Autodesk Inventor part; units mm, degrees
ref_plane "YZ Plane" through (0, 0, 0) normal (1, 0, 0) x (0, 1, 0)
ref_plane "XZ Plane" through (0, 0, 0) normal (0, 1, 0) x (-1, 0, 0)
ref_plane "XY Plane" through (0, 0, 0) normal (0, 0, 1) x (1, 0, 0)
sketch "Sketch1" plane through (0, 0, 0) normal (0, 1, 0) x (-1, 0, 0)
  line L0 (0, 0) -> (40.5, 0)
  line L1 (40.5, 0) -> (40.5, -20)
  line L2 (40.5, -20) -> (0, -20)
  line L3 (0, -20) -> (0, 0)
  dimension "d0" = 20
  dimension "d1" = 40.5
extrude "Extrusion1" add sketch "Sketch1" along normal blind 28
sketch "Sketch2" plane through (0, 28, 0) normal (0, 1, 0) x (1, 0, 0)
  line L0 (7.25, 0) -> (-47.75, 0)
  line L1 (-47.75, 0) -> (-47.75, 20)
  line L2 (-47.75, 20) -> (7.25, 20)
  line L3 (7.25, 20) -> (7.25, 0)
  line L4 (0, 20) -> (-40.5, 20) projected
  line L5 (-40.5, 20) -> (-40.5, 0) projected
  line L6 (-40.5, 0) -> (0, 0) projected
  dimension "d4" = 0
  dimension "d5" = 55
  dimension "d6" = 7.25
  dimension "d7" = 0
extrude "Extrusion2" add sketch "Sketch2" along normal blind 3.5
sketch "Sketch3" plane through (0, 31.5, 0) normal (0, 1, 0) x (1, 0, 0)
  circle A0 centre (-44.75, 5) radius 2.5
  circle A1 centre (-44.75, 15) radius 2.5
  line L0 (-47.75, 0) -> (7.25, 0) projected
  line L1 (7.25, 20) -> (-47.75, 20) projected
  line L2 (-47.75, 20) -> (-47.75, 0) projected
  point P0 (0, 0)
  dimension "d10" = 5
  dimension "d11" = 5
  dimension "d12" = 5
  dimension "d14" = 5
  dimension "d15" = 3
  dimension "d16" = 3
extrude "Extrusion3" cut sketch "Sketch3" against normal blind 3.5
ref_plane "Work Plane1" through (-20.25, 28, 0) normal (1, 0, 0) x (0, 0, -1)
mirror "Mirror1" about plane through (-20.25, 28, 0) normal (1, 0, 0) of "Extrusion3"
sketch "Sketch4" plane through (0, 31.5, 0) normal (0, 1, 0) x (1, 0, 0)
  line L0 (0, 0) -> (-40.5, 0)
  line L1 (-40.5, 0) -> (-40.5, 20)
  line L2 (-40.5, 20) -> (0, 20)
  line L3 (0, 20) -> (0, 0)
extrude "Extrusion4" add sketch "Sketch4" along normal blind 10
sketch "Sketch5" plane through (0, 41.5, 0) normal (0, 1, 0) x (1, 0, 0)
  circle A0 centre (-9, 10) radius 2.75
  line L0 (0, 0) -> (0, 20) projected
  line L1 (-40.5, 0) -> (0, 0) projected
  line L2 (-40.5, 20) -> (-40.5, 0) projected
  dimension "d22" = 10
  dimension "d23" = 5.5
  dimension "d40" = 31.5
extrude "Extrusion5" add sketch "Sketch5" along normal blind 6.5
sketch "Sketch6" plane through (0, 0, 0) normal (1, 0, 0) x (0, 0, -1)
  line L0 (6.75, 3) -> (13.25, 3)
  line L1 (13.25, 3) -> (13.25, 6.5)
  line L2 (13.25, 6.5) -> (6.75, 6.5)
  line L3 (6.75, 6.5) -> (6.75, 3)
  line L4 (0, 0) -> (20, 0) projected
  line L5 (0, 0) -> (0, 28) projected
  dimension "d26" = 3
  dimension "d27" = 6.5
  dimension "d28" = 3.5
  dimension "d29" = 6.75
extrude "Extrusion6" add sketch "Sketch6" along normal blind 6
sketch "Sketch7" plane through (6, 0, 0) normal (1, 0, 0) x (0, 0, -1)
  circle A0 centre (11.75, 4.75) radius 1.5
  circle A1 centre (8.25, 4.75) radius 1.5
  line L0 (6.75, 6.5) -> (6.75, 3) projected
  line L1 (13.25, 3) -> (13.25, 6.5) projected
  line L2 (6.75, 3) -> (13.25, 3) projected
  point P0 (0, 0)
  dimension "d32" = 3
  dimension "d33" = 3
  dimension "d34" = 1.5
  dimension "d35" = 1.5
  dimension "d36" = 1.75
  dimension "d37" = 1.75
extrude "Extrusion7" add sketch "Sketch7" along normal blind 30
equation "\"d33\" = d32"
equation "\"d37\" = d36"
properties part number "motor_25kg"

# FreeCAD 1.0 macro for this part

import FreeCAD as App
import Part
import Sketcher
from FreeCAD import Vector
Q = App.Units.Quantity


def add_polygon(sketch, points):
    """Adds a closed chain of lines whose ends are joined by coincident constraints."""
    first, n = sketch.GeometryCount, len(points)
    for a, b in zip(points, points[1:] + points[:1]):
        sketch.addGeometry(Part.LineSegment(App.Vector(*a, 0), App.Vector(*b, 0)), False)
    for i in range(n):
        sketch.addConstraint(Sketcher.Constraint("Coincident", first + i, 2, first + (i + 1) % n, 1))

doc = App.newDocument("Part")
body = doc.addObject("PartDesign::Body", "Body")

# Sketch on XZ plane
sketch1 = body.newObject("Sketcher::SketchObject", "Sketch")
sketch1.AttachmentSupport = (doc.getObject("XZ_Plane"), [""])
sketch1.MapMode = "FlatFace"
add_polygon(sketch1, [(-40.5, 0), (0, 0), (0, -20), (-40.5, -20)])  # lines 0-3
sketch1.addConstraint([
    Sketcher.Constraint("Horizontal", 0),
    Sketcher.Constraint("Vertical", 1),
    Sketcher.Constraint("Horizontal", 2),
    Sketcher.Constraint("Vertical", 3),
    Sketcher.Constraint("Coincident", 0, 2, -1, 1),
    Sketcher.Constraint("DistanceY", 1, 2, 1, 1, Q("20 mm")),
    Sketcher.Constraint("DistanceX", 0, 1, 0, 2, Q("40.5 mm")),
])
pad1 = body.newObject("PartDesign::Pad", "Pad")
pad1.Profile = sketch1
pad1.Length = 28
pad1.Reversed = True

# Sketch on XZ plane
sketch2 = body.newObject("Sketcher::SketchObject", "Sketch001")
sketch2.AttachmentSupport = (doc.getObject("XZ_Plane"), [""])
sketch2.MapMode = "FlatFace"
sketch2.AttachmentOffset = App.Placement(Vector(0, 0, -28), App.Rotation())
add_polygon(sketch2, [(7.25, 0), (7.25, -20), (-47.75, -20), (-47.75, 0)])  # lines 0-3
sketch2.addConstraint([
    Sketcher.Constraint("Vertical", 0),
    Sketcher.Constraint("Horizontal", 1),
    Sketcher.Constraint("Vertical", 2),
    Sketcher.Constraint("Horizontal", 3),
    Sketcher.Constraint("PointOnObject", 2, 2, -1),
    Sketcher.Constraint("DistanceX", 1, 2, 1, 1, Q("55 mm")),
    Sketcher.Constraint("DistanceY", 0, 2, 0, 1, Q("20 mm")),
    Sketcher.Constraint("DistanceX", -1, 1, 0, 2, Q("7.25 mm")),
])
pad2 = body.newObject("PartDesign::Pad", "Pad001")
pad2.Profile = sketch2
pad2.Length = 3.5
pad2.Reversed = True

# Sketch on XZ plane
sketch3 = body.newObject("Sketcher::SketchObject", "Sketch002")
sketch3.AttachmentSupport = (doc.getObject("XZ_Plane"), [""])
sketch3.MapMode = "FlatFace"
sketch3.AttachmentOffset = App.Placement(Vector(0, 0, -31.5), App.Rotation())
sketch3.addGeometry([
    Part.Circle(Vector(-44.75, -5, 0), Vector(0, 0, 1), 2.5),
    Part.Circle(Vector(-44.75, -15, 0), Vector(0, 0, 1), 2.5),
], False)
sketch3.addConstraint([
    Sketcher.Constraint("Equal", 0, 1),
    Sketcher.Constraint("Vertical", 0, 3, 1, 3),
    Sketcher.Constraint("Diameter", 0, Q("5 mm")),
    Sketcher.Constraint("DistanceY", 0, 3, -1, 1, Q("5 mm")),
    Sketcher.Constraint("DistanceY", 1, 3, -1, 1, Q("15 mm")),
    Sketcher.Constraint("DistanceX", 0, 3, -1, 1, Q("44.75 mm")),
])
pocket1 = body.newObject("PartDesign::Pocket", "Pocket")
pocket1.Profile = sketch3
pocket1.Length = 3.5
pocket1.Reversed = True
doc.recompute()

datumplane = body.newObject("PartDesign::Plane", "DatumPlane")
datumplane.AttachmentSupport = (doc.getObject("YZ_Plane"), [""])
datumplane.MapMode = "FlatFace"
datumplane.AttachmentOffset = App.Placement(Vector(0, 0, -20.25), App.Rotation())
mirrored = body.newObject("PartDesign::Mirrored", "Mirrored")
mirrored.Originals = [pocket1]
mirrored.MirrorPlane = (datumplane, [""])
body.Tip = mirrored

# Sketch on XZ plane
sketch4 = body.newObject("Sketcher::SketchObject", "Sketch003")
sketch4.AttachmentSupport = (doc.getObject("XZ_Plane"), [""])
sketch4.MapMode = "FlatFace"
sketch4.AttachmentOffset = App.Placement(Vector(0, 0, -31.5), App.Rotation())
add_polygon(sketch4, [(-40.5, 0), (0, 0), (0, -20), (-40.5, -20)])  # lines 0-3
sketch4.addConstraint([
    Sketcher.Constraint("Horizontal", 0),
    Sketcher.Constraint("Vertical", 1),
    Sketcher.Constraint("Horizontal", 2),
    Sketcher.Constraint("Vertical", 3),
    Sketcher.Constraint("Coincident", 0, 2, -1, 1),
    Sketcher.Constraint("DistanceY", 1, 2, 1, 1, Q("20 mm")),
    Sketcher.Constraint("DistanceX", 0, 1, 0, 2, Q("40.5 mm")),
])
pad3 = body.newObject("PartDesign::Pad", "Pad002")
pad3.Profile = sketch4
pad3.Length = 10
pad3.Reversed = True

# Sketch on XZ plane
sketch5 = body.newObject("Sketcher::SketchObject", "Sketch004")
sketch5.AttachmentSupport = (doc.getObject("XZ_Plane"), [""])
sketch5.MapMode = "FlatFace"
sketch5.AttachmentOffset = App.Placement(Vector(0, 0, -41.5), App.Rotation())
sketch5.addGeometry(Part.Circle(Vector(-9, -10, 0), Vector(0, 0, 1), 2.75), False)
sketch5.addConstraint([
    Sketcher.Constraint("Diameter", 0, Q("5.5 mm")),
    Sketcher.Constraint("DistanceY", 0, 3, -1, 1, Q("10 mm")),
    Sketcher.Constraint("DistanceX", 0, 3, -1, 1, Q("9 mm")),
])
pad4 = body.newObject("PartDesign::Pad", "Pad003")
pad4.Profile = sketch5
pad4.Length = 6.5
pad4.Reversed = True

# Sketch on YZ plane
sketch6 = body.newObject("Sketcher::SketchObject", "Sketch005")
sketch6.AttachmentSupport = (doc.getObject("YZ_Plane"), [""])
sketch6.MapMode = "FlatFace"
add_polygon(sketch6, [(6.5, -6.75), (3, -6.75), (3, -13.25), (6.5, -13.25)])  # lines 0-3
sketch6.addConstraint([
    Sketcher.Constraint("Horizontal", 0),
    Sketcher.Constraint("Vertical", 1),
    Sketcher.Constraint("Horizontal", 2),
    Sketcher.Constraint("Vertical", 3),
    Sketcher.Constraint("DistanceX", 0, 2, 0, 1, Q("3.5 mm")),
    Sketcher.Constraint("DistanceY", 1, 2, 1, 1, Q("6.5 mm")),
    Sketcher.Constraint("DistanceX", -1, 1, 0, 2, Q("3 mm")),
    Sketcher.Constraint("DistanceY", 0, 2, -1, 1, Q("6.75 mm")),
])
pad5 = body.newObject("PartDesign::Pad", "Pad004")
pad5.Profile = sketch6
pad5.Length = 6

# Sketch on YZ plane
sketch7 = body.newObject("Sketcher::SketchObject", "Sketch006")
sketch7.AttachmentSupport = (doc.getObject("YZ_Plane"), [""])
sketch7.MapMode = "FlatFace"
sketch7.AttachmentOffset = App.Placement(Vector(0, 0, 6), App.Rotation())
sketch7.addGeometry([
    Part.Circle(Vector(4.75, -11.75, 0), Vector(0, 0, 1), 1.5),
    Part.Circle(Vector(4.75, -8.25, 0), Vector(0, 0, 1), 1.5),
], False)
sketch7.addConstraint([
    Sketcher.Constraint("Equal", 0, 1),
    Sketcher.Constraint("Vertical", 0, 3, 1, 3),
    Sketcher.Constraint("Diameter", 0, Q("3 mm")),
    Sketcher.Constraint("DistanceY", 0, 3, 1, 3, Q("3.5 mm")),
    Sketcher.Constraint("DistanceX", -1, 1, 0, 3, Q("4.75 mm")),
    Sketcher.Constraint("DistanceY", 0, 3, -1, 1, Q("11.75 mm")),
])
pad6 = body.newObject("PartDesign::Pad", "Pad005")
pad6.Profile = sketch7
pad6.Length = 30

doc.recompute()
